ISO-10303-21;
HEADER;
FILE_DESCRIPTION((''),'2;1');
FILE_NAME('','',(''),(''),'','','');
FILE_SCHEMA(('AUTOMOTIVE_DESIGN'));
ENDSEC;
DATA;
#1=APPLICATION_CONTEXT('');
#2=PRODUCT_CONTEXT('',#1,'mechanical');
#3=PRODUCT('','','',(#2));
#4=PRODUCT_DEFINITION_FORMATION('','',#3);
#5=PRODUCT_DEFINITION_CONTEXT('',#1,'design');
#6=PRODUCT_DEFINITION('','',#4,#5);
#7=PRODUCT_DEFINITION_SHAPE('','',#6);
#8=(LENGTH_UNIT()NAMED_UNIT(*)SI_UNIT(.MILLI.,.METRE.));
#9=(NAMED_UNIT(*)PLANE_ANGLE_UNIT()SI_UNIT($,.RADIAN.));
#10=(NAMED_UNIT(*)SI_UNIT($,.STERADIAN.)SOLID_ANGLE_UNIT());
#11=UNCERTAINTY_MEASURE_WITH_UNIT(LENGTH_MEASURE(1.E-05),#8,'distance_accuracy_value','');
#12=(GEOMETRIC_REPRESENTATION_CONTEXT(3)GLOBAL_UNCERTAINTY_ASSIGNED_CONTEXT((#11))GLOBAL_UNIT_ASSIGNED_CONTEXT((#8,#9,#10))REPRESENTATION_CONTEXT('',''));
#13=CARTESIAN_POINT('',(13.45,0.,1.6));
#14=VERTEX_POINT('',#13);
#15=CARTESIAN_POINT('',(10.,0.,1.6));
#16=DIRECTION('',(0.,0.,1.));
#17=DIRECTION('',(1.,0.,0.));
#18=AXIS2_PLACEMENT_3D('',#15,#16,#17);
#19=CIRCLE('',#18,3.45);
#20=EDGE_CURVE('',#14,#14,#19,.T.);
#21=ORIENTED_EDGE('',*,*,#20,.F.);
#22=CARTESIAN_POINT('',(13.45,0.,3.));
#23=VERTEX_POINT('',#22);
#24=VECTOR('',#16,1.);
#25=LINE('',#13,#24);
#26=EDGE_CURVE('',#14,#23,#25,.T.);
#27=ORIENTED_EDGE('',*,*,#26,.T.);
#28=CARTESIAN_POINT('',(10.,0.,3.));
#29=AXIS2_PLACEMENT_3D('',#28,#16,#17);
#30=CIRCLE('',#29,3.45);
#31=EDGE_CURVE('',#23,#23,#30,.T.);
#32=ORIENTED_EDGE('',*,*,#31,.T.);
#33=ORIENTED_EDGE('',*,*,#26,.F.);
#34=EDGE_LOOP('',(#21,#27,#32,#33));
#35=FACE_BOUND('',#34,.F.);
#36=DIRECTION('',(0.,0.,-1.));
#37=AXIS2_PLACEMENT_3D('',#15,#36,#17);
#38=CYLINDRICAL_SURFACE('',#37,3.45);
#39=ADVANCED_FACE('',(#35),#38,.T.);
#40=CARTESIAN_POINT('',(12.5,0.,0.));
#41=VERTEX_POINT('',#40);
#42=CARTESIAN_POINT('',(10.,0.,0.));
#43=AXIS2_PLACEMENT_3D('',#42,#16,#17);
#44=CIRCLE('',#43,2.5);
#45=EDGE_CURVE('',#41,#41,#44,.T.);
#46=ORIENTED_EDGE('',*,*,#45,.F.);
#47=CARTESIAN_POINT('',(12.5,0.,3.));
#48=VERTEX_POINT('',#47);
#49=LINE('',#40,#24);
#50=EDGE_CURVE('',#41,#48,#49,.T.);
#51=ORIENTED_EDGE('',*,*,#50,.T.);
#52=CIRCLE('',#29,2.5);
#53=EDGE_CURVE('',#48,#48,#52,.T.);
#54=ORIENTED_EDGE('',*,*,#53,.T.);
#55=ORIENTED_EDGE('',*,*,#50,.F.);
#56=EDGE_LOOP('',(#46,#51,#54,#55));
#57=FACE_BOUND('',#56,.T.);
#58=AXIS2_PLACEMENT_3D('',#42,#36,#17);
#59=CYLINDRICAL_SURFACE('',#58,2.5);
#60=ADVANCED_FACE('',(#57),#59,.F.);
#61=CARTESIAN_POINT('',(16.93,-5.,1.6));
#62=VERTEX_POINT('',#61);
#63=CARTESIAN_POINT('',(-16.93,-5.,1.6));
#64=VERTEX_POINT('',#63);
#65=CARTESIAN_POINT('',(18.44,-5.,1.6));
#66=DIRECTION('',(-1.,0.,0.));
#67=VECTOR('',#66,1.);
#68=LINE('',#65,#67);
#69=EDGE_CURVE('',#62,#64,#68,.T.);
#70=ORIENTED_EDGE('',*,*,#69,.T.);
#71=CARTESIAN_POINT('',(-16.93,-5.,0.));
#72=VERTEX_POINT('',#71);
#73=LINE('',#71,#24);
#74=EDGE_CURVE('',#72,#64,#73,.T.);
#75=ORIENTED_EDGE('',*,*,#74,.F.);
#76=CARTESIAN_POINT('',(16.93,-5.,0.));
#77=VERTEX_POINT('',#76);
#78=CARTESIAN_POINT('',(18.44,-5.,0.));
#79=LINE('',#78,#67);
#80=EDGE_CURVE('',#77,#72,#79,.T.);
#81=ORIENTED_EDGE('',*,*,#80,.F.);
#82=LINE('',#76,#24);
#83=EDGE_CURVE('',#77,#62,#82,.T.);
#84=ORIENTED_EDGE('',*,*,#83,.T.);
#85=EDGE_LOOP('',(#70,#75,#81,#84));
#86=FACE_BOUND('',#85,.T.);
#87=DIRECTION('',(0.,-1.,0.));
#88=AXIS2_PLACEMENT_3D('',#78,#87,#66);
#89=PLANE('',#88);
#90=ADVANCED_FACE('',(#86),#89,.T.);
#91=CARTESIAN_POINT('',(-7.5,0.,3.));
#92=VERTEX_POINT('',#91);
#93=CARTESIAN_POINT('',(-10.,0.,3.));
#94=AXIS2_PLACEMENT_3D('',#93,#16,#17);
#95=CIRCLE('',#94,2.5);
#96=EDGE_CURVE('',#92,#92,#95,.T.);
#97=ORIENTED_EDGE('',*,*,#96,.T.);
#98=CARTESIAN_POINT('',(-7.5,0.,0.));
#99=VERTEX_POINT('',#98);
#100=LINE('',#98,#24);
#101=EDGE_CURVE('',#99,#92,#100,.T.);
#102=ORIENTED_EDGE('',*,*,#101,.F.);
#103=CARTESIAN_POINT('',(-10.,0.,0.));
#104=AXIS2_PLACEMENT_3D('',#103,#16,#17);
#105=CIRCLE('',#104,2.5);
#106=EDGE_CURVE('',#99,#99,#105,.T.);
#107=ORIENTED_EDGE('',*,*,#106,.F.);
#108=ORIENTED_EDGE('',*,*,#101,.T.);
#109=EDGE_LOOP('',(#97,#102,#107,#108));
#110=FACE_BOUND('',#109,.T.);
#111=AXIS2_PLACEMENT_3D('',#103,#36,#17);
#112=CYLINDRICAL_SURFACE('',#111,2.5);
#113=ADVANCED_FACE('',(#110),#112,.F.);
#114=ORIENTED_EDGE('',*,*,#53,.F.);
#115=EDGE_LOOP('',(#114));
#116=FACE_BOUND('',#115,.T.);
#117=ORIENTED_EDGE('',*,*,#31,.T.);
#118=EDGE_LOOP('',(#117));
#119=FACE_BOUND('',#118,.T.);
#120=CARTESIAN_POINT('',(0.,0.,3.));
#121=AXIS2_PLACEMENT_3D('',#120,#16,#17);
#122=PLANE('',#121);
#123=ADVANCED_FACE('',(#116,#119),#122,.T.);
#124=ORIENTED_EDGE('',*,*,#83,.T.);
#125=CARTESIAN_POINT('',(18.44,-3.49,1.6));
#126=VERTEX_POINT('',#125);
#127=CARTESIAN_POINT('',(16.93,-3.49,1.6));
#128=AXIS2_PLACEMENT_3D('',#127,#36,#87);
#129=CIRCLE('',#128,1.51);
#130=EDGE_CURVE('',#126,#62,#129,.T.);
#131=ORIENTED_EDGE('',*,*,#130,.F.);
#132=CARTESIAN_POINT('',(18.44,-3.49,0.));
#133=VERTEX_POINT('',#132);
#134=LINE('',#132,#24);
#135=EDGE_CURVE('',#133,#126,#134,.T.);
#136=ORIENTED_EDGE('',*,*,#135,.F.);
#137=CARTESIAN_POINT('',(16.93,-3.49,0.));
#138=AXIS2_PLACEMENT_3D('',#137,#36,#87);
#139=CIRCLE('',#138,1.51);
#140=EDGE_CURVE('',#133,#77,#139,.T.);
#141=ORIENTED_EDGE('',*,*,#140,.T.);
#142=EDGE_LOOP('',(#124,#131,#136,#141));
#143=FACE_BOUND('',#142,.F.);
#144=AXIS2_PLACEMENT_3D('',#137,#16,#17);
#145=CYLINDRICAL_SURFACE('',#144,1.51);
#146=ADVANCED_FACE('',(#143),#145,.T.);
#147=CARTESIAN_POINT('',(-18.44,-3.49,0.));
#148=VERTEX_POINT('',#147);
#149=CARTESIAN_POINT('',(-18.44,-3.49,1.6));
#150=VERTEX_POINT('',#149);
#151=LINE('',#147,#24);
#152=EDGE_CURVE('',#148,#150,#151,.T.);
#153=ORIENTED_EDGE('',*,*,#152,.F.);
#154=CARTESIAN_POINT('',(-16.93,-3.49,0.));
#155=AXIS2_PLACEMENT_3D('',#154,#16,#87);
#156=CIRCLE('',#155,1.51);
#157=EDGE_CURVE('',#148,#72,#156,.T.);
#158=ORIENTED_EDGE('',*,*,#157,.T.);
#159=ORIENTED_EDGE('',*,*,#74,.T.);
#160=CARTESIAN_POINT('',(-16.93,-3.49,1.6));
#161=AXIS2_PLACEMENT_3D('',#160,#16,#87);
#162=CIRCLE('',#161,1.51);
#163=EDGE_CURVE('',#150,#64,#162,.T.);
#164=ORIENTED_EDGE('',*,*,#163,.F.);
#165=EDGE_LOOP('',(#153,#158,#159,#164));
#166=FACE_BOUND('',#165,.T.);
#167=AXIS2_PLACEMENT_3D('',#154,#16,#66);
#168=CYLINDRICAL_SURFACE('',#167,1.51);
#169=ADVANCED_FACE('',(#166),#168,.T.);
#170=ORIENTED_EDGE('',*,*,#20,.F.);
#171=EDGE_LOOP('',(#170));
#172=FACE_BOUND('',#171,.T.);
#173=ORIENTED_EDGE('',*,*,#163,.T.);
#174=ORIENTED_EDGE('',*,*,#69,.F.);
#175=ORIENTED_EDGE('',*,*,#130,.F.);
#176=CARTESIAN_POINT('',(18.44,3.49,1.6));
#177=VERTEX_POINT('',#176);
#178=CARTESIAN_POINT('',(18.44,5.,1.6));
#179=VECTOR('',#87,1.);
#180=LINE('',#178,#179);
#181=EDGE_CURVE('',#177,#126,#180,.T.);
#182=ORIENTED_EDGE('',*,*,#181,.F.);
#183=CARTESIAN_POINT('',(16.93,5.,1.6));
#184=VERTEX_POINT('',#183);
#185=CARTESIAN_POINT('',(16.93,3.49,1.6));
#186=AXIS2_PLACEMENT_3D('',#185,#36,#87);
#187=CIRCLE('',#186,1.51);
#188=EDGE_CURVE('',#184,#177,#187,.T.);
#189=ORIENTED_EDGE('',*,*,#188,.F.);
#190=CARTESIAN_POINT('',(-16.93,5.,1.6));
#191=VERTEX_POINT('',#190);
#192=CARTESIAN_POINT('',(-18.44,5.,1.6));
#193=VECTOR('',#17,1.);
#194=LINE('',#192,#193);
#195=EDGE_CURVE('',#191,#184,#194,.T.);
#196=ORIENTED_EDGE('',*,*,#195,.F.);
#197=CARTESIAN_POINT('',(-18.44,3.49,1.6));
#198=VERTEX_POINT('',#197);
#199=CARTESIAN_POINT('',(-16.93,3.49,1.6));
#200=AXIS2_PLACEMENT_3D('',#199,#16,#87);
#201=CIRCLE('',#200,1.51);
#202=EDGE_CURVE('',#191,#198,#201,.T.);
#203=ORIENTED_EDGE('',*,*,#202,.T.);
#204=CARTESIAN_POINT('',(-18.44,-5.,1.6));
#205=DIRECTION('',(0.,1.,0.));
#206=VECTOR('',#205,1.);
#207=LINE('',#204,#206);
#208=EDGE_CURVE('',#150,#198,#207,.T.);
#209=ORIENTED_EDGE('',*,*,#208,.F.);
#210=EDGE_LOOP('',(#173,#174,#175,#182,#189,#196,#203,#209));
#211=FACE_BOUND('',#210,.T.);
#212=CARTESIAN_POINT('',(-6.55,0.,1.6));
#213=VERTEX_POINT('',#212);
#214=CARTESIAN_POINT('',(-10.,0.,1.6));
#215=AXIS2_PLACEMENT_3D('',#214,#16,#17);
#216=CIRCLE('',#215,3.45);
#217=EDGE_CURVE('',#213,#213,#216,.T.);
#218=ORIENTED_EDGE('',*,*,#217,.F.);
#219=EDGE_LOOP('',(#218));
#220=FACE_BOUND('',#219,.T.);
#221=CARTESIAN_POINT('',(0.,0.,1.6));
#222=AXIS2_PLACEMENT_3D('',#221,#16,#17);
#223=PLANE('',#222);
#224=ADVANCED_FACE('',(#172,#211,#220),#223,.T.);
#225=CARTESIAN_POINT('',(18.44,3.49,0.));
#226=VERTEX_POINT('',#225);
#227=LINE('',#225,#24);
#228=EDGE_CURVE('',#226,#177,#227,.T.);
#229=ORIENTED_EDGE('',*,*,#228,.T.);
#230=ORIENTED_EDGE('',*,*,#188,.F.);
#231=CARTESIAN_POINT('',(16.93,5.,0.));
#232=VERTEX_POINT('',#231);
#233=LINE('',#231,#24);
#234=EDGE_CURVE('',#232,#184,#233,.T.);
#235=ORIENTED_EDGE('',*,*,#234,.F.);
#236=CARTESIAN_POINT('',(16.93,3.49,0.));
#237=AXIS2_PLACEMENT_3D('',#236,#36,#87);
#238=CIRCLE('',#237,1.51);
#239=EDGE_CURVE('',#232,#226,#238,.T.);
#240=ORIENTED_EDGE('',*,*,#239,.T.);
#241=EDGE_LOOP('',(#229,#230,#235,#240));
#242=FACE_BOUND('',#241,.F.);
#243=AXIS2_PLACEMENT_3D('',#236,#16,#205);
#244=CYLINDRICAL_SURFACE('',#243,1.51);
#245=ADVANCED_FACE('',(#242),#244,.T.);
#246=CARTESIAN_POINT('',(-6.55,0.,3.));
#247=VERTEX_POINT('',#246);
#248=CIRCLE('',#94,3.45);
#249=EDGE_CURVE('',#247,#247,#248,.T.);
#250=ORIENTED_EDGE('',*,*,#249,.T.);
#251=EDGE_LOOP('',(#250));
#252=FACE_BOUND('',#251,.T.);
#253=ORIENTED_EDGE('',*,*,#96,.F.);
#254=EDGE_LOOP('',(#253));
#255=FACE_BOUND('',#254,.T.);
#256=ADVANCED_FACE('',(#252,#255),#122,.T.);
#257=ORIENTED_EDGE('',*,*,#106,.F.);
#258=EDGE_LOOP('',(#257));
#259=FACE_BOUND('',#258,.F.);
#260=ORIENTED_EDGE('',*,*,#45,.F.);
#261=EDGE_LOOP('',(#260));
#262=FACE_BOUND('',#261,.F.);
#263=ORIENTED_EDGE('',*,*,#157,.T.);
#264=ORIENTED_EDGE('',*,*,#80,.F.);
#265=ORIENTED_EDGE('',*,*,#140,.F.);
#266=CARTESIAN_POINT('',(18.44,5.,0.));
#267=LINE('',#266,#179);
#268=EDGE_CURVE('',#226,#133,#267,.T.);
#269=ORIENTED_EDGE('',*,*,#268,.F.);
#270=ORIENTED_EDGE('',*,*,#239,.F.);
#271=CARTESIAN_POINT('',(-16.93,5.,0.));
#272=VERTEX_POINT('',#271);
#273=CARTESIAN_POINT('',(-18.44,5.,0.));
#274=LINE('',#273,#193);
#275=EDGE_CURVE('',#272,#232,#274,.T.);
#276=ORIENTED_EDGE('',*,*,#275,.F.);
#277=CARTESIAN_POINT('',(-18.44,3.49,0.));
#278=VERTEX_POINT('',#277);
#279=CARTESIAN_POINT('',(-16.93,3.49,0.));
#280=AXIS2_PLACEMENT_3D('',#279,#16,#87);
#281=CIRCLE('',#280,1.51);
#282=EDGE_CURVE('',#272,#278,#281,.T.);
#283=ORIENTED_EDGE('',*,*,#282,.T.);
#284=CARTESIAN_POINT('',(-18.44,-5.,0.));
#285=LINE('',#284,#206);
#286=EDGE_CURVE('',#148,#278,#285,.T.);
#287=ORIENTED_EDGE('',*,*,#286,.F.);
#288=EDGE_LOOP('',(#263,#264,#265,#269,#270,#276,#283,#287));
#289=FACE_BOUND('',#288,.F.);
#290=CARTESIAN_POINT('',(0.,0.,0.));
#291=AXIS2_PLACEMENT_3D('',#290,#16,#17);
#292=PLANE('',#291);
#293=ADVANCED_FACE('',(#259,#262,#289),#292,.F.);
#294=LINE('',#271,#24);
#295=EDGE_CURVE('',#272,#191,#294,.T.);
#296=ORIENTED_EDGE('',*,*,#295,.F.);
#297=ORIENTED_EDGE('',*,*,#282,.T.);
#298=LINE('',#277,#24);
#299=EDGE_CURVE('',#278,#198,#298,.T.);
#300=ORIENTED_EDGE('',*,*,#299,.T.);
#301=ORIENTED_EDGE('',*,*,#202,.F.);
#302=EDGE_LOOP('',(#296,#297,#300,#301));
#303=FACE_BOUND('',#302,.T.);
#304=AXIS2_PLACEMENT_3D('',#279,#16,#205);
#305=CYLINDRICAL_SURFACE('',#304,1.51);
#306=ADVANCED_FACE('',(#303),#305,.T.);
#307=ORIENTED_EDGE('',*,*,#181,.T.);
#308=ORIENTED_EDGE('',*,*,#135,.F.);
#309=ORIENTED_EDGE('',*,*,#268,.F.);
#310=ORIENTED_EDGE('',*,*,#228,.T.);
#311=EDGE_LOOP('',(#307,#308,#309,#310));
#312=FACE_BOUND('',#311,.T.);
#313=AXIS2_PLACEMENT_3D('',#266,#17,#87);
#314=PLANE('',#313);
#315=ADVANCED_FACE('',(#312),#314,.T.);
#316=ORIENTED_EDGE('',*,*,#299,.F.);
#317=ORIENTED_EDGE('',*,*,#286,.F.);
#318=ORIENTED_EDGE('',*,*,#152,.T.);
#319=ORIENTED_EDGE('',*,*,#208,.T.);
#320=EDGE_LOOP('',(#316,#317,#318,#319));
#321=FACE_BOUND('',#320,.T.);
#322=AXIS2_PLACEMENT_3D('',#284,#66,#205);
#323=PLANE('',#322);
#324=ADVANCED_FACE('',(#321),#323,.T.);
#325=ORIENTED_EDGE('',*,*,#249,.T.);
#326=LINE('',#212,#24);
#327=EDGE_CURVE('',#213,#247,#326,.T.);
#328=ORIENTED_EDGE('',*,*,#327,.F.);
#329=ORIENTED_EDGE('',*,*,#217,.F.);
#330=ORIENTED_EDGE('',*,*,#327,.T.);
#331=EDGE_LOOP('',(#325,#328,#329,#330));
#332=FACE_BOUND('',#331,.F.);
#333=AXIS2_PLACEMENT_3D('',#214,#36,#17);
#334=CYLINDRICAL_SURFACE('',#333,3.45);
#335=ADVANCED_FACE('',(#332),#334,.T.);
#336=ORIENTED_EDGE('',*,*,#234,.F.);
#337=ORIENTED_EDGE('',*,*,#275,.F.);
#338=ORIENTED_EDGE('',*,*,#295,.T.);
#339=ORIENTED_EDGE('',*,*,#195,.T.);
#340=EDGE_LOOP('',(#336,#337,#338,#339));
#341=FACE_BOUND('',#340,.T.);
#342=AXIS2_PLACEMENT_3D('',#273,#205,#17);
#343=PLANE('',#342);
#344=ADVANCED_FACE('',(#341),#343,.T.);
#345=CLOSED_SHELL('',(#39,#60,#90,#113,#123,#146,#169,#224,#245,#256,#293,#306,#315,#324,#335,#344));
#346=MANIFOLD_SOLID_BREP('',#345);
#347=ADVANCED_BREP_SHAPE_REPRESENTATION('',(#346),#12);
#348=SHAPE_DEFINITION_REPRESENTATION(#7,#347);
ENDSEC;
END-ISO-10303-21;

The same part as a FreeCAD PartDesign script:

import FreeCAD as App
import Part
import Sketcher

V = App.Vector
Q = App.Units.Quantity


def edges_at(feature, points):
    """Names of the edges that pass closest to the given points."""
    edges = feature.Shape.Edges
    near = lambda p: min(range(len(edges)), key=lambda i: edges[i].distToShape(Part.Vertex(*p))[0])
    return sorted({f"Edge{near(p) + 1}" for p in points})


def add_polygon(sketch, points):
    """Adds a closed chain of lines whose ends are joined by coincident constraints."""
    first, n = sketch.GeometryCount, len(points)
    for a, b in zip(points, points[1:] + points[:1]):
        sketch.addGeometry(Part.LineSegment(App.Vector(*a, 0), App.Vector(*b, 0)), False)
    for i in range(n):
        sketch.addConstraint(Sketcher.Constraint("Coincident", first + i, 2, first + (i + 1) % n, 1))

doc = App.newDocument("Part")
body = doc.addObject("PartDesign::Body", "Body")

# Sketch on XY plane
sketch1 = body.newObject("Sketcher::SketchObject", "Sketch")
sketch1.AttachmentSupport = (doc.getObject("XY_Plane"), [""])
sketch1.MapMode = "FlatFace"
add_polygon(sketch1, [(18.44, 5), (-18.44, 5), (-18.44, -5), (18.44, -5)])  # lines 0-3
sketch1.addGeometry(Part.Circle(V(-10, 0, 0), V(0, 0, 1), 2.5), False)  # 4
sketch1.addGeometry(Part.Circle(V(10, 0, 0), V(0, 0, 1), 2.5), False)  # 5
sketch1.addConstraint(Sketcher.Constraint("Horizontal", 0))
sketch1.addConstraint(Sketcher.Constraint("Vertical", 1))
sketch1.addConstraint(Sketcher.Constraint("Horizontal", 2))
sketch1.addConstraint(Sketcher.Constraint("Vertical", 3))
sketch1.addConstraint(Sketcher.Constraint("Equal", 4, 5))
sketch1.addConstraint(Sketcher.Constraint("Symmetric", 4, 3, 5, 3, -1, 1))
sketch1.addConstraint(Sketcher.Constraint("Symmetric", 0, 2, 2, 2, -1, 1))
sketch1.addConstraint(Sketcher.Constraint("PointOnObject", 4, 3, -1))
sketch1.addConstraint(Sketcher.Constraint("Diameter", 4, Q("5 mm")))
sketch1.addConstraint(Sketcher.Constraint("DistanceY", 1, 2, 1, 1, Q("10 mm")))
sketch1.addConstraint(Sketcher.Constraint("DistanceX", 4, 3, -1, 1, Q("10 mm")))
sketch1.addConstraint(Sketcher.Constraint("DistanceX", 0, 2, 0, 1, Q("36.88 mm")))
pad1 = body.newObject("PartDesign::Pad", "Pad")
pad1.Profile = sketch1
pad1.Length = 1.6

# Sketch on XY plane
sketch2 = body.newObject("Sketcher::SketchObject", "Sketch001")
sketch2.AttachmentSupport = (doc.getObject("XY_Plane"), [""])
sketch2.MapMode = "FlatFace"
sketch2.AttachmentOffset = App.Placement(V(0, 0, 1.6), App.Rotation())
sketch2.addGeometry(Part.Circle(V(-10, 0, 0), V(0, 0, 1), 3.45), False)
sketch2.addGeometry(Part.Circle(V(-10, 0, 0), V(0, 0, 1), 2.5), False)
sketch2.addGeometry(Part.Circle(V(10, 0, 0), V(0, 0, 1), 3.45), False)
sketch2.addGeometry(Part.Circle(V(10, 0, 0), V(0, 0, 1), 2.5), False)
sketch2.addConstraint(Sketcher.Constraint("Coincident", 1, 3, 0, 3))
sketch2.addConstraint(Sketcher.Constraint("Coincident", 3, 3, 2, 3))
sketch2.addConstraint(Sketcher.Constraint("Equal", 0, 2))
sketch2.addConstraint(Sketcher.Constraint("Equal", 1, 3))
sketch2.addConstraint(Sketcher.Constraint("Symmetric", 0, 3, 2, 3, -1, 1))
sketch2.addConstraint(Sketcher.Constraint("PointOnObject", 0, 3, -1))
sketch2.addConstraint(Sketcher.Constraint("Diameter", 0, Q("6.9 mm")))
sketch2.addConstraint(Sketcher.Constraint("Diameter", 1, Q("5 mm")))
sketch2.addConstraint(Sketcher.Constraint("DistanceX", 0, 3, -1, 1, Q("10 mm")))
pad2 = body.newObject("PartDesign::Pad", "Pad001")
pad2.Profile = sketch2
pad2.Length = 1.4
doc.recompute()

fillet = body.newObject("PartDesign::Fillet", "Fillet")
fillet.Base = (pad2, edges_at(pad2, [
    (18.44, 5, 0.8),
    (18.44, -5, 0.8),
    (-18.44, -5, 0.8),
    (-18.44, 5, 0.8),
]))
fillet.Radius = 1.51

doc.recompute()
